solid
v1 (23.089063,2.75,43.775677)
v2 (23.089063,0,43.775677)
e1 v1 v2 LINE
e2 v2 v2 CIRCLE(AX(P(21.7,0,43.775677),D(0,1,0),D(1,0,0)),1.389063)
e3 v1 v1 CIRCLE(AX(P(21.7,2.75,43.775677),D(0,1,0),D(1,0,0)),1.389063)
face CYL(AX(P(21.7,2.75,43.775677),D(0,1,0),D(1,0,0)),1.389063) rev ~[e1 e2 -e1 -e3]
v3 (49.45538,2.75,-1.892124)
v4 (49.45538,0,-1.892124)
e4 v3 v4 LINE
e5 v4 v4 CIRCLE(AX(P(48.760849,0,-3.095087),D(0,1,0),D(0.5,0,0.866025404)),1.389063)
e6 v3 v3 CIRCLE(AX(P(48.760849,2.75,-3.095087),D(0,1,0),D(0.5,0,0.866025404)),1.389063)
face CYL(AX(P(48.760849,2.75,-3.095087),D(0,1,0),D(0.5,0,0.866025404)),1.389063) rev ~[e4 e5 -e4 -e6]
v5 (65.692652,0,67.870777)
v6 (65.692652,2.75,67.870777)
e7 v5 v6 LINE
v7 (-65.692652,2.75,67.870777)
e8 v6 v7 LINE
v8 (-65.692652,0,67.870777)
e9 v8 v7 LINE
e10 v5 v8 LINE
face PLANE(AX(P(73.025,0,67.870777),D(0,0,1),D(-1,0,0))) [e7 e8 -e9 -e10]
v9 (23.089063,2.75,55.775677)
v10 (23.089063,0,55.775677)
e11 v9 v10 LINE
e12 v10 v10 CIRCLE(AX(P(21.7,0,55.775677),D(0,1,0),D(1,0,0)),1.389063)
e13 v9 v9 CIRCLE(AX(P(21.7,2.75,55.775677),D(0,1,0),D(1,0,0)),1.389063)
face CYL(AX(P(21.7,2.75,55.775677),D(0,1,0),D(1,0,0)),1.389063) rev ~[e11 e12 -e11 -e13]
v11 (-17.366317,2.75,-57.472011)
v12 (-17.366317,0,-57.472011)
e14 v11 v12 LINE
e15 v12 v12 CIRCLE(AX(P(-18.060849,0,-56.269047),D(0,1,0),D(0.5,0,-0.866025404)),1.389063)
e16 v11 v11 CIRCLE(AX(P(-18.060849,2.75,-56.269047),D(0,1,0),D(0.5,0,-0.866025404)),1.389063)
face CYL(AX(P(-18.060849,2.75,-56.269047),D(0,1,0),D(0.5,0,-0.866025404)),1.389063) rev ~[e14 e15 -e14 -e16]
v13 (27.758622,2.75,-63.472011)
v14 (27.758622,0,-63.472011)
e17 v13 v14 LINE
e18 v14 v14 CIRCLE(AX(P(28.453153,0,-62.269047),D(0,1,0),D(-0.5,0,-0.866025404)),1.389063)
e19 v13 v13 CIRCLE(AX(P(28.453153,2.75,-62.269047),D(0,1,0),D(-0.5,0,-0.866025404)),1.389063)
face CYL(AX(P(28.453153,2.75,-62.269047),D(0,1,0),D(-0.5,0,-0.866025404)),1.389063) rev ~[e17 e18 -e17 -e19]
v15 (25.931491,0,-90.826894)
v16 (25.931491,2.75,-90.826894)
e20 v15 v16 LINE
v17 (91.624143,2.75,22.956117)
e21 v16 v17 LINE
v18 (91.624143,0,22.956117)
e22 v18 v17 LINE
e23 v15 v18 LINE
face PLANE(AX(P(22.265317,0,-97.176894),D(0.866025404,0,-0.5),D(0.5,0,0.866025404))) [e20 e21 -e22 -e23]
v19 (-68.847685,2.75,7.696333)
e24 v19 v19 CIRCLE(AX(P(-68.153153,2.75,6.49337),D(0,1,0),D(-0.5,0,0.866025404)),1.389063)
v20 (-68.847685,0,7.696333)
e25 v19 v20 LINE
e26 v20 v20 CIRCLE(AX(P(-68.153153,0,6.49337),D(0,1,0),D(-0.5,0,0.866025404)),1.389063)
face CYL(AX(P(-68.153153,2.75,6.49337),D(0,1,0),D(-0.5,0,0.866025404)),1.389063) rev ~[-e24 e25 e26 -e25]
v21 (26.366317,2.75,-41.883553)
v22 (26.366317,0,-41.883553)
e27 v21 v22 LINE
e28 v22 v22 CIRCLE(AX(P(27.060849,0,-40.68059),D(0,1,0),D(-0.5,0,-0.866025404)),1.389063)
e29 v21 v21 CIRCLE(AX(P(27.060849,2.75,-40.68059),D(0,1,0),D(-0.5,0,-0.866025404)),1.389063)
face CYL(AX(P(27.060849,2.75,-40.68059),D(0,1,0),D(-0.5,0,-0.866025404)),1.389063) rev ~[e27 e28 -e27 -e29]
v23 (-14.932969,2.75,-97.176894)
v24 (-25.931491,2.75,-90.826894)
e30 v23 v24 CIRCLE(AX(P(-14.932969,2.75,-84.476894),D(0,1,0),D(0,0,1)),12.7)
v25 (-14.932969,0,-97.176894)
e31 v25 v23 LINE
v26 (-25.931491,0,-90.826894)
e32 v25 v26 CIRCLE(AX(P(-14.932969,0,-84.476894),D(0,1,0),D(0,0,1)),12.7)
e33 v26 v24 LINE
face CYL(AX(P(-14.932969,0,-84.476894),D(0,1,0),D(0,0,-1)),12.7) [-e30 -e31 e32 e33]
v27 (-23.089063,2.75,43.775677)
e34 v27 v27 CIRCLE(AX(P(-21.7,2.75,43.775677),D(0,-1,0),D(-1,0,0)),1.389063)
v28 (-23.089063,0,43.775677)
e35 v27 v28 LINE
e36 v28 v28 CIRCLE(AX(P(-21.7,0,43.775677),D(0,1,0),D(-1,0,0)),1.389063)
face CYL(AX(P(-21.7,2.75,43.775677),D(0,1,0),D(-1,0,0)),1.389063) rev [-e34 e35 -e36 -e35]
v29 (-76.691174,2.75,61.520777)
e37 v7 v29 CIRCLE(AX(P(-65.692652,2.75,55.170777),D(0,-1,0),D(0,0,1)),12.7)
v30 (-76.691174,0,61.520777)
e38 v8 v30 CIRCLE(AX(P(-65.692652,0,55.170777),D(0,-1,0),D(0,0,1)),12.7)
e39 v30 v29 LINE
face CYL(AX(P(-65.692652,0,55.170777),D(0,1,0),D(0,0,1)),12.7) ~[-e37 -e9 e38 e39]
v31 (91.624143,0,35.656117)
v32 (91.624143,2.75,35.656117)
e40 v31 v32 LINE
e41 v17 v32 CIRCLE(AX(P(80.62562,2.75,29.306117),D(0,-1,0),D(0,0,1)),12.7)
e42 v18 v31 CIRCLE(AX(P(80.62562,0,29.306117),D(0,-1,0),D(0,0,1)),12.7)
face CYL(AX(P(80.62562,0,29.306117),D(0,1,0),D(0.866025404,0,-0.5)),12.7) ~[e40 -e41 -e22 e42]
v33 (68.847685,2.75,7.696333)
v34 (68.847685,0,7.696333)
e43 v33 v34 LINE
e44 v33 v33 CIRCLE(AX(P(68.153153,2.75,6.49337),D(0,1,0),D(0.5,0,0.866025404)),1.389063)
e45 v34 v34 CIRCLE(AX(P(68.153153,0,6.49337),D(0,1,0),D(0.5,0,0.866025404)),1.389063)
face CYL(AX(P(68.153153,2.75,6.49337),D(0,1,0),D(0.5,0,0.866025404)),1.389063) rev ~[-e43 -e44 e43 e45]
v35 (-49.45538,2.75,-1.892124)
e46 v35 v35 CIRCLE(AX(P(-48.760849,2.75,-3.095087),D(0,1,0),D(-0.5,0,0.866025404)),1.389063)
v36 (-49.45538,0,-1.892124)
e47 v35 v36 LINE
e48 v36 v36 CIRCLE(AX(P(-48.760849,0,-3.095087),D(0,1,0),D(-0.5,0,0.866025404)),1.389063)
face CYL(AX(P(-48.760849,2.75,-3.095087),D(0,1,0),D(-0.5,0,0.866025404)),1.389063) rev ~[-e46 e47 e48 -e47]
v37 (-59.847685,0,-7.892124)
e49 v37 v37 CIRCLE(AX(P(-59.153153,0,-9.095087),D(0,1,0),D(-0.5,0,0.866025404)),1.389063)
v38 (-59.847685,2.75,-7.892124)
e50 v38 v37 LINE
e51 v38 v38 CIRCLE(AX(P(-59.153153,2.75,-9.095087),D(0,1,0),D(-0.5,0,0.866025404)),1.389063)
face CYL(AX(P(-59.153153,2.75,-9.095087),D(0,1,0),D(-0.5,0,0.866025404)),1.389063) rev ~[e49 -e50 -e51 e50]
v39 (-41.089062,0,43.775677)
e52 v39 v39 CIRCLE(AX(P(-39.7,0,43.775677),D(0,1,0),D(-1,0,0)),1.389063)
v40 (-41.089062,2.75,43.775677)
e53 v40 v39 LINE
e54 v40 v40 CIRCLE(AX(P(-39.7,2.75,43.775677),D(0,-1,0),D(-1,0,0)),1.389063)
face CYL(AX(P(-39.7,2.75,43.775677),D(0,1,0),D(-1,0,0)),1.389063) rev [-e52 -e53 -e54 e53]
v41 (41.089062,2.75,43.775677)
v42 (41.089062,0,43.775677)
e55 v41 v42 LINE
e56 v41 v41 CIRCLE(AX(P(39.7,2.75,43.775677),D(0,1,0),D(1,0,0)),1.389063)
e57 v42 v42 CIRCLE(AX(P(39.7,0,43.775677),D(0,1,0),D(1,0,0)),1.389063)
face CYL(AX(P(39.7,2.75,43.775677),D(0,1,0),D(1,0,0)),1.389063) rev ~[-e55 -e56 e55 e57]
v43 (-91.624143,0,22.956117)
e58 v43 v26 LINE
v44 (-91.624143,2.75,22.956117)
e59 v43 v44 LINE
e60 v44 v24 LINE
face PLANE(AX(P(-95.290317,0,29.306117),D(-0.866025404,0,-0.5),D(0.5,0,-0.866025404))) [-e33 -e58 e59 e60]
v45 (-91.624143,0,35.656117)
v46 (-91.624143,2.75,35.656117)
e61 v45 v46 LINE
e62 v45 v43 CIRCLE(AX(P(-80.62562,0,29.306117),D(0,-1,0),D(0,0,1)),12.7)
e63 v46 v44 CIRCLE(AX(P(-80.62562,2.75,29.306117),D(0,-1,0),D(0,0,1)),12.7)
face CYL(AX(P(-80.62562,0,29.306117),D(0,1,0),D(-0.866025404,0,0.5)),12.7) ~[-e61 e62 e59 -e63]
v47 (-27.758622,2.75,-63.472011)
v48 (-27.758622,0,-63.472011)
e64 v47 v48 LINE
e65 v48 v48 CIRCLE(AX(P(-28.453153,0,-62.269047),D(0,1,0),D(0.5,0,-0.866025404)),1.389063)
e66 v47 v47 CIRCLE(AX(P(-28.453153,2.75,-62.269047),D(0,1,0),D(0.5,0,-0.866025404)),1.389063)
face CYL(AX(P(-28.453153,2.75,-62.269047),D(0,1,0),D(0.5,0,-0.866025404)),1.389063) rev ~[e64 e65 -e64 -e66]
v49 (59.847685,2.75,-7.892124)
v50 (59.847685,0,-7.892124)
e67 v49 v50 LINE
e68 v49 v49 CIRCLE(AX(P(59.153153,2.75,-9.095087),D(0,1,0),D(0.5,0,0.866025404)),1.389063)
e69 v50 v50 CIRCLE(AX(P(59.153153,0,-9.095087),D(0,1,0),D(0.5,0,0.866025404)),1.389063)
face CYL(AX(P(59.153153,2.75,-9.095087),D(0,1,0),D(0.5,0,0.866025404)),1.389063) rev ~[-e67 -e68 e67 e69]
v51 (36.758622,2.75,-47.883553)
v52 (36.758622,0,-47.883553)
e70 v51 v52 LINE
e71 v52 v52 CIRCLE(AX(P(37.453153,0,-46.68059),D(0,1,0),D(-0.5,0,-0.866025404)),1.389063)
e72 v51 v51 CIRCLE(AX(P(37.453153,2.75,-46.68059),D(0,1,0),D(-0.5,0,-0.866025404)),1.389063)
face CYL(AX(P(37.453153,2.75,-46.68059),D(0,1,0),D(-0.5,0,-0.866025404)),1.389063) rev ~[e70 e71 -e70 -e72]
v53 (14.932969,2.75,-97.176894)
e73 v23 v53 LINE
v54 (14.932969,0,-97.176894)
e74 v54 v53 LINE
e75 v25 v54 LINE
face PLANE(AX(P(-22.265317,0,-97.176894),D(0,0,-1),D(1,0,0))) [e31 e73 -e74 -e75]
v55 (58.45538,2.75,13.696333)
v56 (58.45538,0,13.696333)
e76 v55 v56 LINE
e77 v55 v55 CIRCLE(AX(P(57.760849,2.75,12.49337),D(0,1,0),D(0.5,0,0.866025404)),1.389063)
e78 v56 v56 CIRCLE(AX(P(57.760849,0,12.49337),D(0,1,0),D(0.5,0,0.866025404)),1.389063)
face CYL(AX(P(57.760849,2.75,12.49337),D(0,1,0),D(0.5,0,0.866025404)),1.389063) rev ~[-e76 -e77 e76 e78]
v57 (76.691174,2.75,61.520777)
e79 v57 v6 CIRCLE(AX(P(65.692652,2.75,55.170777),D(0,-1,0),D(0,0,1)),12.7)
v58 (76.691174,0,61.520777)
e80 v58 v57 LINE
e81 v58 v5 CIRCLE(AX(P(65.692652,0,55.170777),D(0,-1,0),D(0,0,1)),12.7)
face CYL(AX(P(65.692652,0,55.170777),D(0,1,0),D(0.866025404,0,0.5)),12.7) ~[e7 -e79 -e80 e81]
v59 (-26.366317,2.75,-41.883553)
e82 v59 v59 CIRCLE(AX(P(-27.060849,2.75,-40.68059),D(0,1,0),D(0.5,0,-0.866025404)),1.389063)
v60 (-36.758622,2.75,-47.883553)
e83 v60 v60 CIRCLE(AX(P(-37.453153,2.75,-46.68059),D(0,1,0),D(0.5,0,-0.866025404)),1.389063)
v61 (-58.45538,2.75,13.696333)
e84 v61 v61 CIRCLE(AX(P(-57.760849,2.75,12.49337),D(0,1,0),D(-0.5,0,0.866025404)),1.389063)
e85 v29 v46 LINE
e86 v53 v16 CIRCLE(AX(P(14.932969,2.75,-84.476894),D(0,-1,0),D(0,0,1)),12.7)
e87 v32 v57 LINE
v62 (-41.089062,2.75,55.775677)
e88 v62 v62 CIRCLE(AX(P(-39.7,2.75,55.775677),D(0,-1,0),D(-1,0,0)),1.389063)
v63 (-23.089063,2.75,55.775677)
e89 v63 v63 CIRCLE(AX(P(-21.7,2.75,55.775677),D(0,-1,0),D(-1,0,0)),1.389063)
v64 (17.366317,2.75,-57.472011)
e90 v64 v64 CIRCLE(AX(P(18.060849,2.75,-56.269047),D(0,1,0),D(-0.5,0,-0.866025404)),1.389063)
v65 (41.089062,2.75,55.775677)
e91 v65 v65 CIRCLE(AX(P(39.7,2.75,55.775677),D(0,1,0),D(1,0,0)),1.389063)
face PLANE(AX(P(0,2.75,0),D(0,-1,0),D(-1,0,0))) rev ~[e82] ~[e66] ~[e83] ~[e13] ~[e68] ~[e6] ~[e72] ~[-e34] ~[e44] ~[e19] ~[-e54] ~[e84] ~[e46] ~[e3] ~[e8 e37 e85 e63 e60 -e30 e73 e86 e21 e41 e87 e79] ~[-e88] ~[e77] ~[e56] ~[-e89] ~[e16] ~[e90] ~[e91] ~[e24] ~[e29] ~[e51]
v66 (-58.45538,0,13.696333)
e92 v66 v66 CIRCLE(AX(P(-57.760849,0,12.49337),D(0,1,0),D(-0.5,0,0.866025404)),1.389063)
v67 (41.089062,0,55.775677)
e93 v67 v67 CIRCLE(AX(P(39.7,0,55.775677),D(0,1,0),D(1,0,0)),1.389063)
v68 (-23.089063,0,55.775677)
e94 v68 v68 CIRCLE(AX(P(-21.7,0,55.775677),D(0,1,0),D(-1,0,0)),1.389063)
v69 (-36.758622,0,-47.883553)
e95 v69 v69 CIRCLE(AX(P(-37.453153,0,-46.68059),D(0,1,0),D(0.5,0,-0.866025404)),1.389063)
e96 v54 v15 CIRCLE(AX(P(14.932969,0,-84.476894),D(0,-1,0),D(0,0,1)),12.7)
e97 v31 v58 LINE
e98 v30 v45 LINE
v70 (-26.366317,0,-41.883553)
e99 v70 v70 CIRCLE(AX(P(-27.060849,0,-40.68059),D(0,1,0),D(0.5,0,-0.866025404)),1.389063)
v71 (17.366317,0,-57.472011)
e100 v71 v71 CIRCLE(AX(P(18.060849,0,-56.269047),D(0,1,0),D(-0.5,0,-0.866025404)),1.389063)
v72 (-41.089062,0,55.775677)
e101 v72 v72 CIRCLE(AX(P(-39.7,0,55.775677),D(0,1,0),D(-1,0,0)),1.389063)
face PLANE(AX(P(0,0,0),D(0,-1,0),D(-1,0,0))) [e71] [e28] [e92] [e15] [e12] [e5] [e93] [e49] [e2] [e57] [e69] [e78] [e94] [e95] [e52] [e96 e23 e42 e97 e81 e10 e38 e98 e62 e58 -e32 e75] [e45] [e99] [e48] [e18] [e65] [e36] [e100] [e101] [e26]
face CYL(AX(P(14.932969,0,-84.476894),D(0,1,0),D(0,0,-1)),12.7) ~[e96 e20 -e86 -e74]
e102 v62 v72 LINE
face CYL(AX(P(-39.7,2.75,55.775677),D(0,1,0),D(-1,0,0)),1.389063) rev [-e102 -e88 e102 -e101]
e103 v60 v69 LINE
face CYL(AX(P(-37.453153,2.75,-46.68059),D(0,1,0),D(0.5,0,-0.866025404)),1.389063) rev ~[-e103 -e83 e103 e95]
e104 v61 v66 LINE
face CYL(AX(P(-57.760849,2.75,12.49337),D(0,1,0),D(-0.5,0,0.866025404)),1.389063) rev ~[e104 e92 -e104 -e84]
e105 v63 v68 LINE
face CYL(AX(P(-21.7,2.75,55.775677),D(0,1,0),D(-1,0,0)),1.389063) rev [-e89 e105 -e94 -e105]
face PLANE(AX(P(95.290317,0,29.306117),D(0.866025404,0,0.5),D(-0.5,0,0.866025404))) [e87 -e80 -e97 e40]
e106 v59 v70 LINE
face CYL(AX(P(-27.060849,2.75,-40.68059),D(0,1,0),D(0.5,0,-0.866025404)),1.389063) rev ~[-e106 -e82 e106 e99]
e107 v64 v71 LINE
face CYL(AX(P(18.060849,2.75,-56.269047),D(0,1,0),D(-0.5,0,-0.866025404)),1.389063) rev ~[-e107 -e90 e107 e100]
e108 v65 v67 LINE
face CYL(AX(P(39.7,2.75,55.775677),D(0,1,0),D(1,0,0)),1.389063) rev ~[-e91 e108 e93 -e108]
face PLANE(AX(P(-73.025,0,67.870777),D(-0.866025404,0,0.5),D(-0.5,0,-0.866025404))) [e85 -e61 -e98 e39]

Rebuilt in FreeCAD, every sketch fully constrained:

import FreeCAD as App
import Part
import Sketcher
Q = App.Units.Quantity


def edges_at(feature, points):
    """Names of the edges that pass closest to the given points."""
    edges = feature.Shape.Edges
    near = lambda p: min(range(len(edges)), key=lambda i: edges[i].distToShape(Part.Vertex(*p))[0])
    return sorted({f"Edge{near(p) + 1}" for p in points})


def add_polygon(sketch, points):
    """Adds a closed chain of lines whose ends are joined by coincident constraints."""
    first, n = sketch.GeometryCount, len(points)
    for a, b in zip(points, points[1:] + points[:1]):
        sketch.addGeometry(Part.LineSegment(App.Vector(*a, 0), App.Vector(*b, 0)), False)
    for i in range(n):
        sketch.addConstraint(Sketcher.Constraint("Coincident", first + i, 2, first + (i + 1) % n, 1))

doc = App.newDocument("Part")
body = doc.addObject("PartDesign::Body", "Body")

# Sketch on XZ plane
sketch1 = body.newObject("Sketcher::SketchObject", "Sketch")
sketch1.AttachmentSupport = (doc.getObject("XZ_Plane"), [""])
sketch1.MapMode = "FlatFace"
add_polygon(sketch1, [(22, -97), (-22, -97), (-95, 29), (-73, 68), (73, 68), (95, 29)])  # lines 0-5
sketch1.addConstraint(Sketcher.Constraint("Horizontal", 0))
sketch1.addConstraint(Sketcher.Constraint("Horizontal", 3))
sketch1.addConstraint(Sketcher.Constraint("Symmetric", 1, 2, 4, 2, -2))
sketch1.addConstraint(Sketcher.Constraint("Parallel", 1, 4))
sketch1.addConstraint(Sketcher.Constraint("Parallel", 2, 5))
sketch1.addConstraint(Sketcher.Constraint("Equal", 2, 4))
sketch1.addConstraint(Sketcher.Constraint("Angle", 1, Q("120 deg")))
sketch1.addConstraint(Sketcher.Constraint("DistanceX", 3, 1, 3, 2, Q("5.75 in")))
sketch1.addConstraint(Sketcher.Constraint("Distance", 1, Q("5.75 in")))
sketch1.addConstraint(Sketcher.Constraint("DistanceX", 0, 2, 0, 1, Q("44.530634 mm")))
sketch1.addConstraint(Sketcher.Constraint("DistanceY", 0, 2, -1, 1, Q("97.176894 mm")))
pad1 = body.newObject("PartDesign::Pad", "Pad")
pad1.Profile = sketch1
pad1.Length = 2.75
pad1.Reversed = True
doc.recompute()

fillet = body.newObject("PartDesign::Fillet", "Fillet")
fillet.Base = (pad1, edges_at(pad1, [
    (-22.265, 1.375, -97.177),
    (22.265, 1.375, -97.177),
    (95.29, 1.375, 29.306),
    (73.025, 1.375, 67.871),
    (-73.025, 1.375, 67.871),
    (-95.29, 1.375, 29.306),
]))
fillet.Radius = Q("0.5 in")

# Sketch on XZ plane
sketch2 = body.newObject("Sketcher::SketchObject", "Sketch001")
sketch2.AttachmentSupport = (doc.getObject("XZ_Plane"), [""])
sketch2.MapMode = "FlatFace"
sketch2.AttachmentOffset = App.Placement(App.Vector(0, 0, -2.75), App.Rotation())
sketch2.addGeometry(Part.Circle(App.Vector(21.7, 43.8, 0), App.Vector(0, 0, 1), 1.4), False)
sketch2.addGeometry(Part.Circle(App.Vector(21.7, 55.8, 0), App.Vector(0, 0, 1), 1.4), False)
sketch2.addGeometry(Part.Circle(App.Vector(39.7, 43.8, 0), App.Vector(0, 0, 1), 1.4), False)
sketch2.addGeometry(Part.Circle(App.Vector(39.7, 55.8, 0), App.Vector(0, 0, 1), 1.4), False)
sketch2.addConstraint(Sketcher.Constraint("Equal", 0, 1))
sketch2.addConstraint(Sketcher.Constraint("Equal", 1, 2))
sketch2.addConstraint(Sketcher.Constraint("Equal", 2, 3))
sketch2.addConstraint(Sketcher.Constraint("Horizontal", 0, 3, 2, 3))
sketch2.addConstraint(Sketcher.Constraint("Horizontal", 1, 3, 3, 3))
sketch2.addConstraint(Sketcher.Constraint("Vertical", 0, 3, 1, 3))
sketch2.addConstraint(Sketcher.Constraint("Vertical", 2, 3, 3, 3))
sketch2.addConstraint(Sketcher.Constraint("Diameter", 0, Q("0.109375 in")))
sketch2.addConstraint(Sketcher.Constraint("DistanceX", -1, 1, 0, 3, Q("21.7 mm")))
sketch2.addConstraint(Sketcher.Constraint("DistanceX", -1, 1, 2, 3, Q("39.7 mm")))
sketch2.addConstraint(Sketcher.Constraint("DistanceY", 0, 3, 1, 3, Q("12 mm")))
sketch2.addConstraint(Sketcher.Constraint("DistanceY", -1, 1, 0, 3, Q("43.775677 mm")))
pocket1 = body.newObject("PartDesign::Pocket", "Pocket")
pocket1.Profile = sketch2
pocket1.Type = "ThroughAll"
pocket1.Reversed = True
doc.recompute()

mirrored = body.newObject("PartDesign::Mirrored", "Mirrored")
mirrored.Originals = [pocket1]
mirrored.MirrorPlane = (doc.getObject("YZ_Plane"), [""])
body.Tip = mirrored
doc.recompute()

polarpattern = body.newObject("PartDesign::PolarPattern", "PolarPattern")
polarpattern.Originals = [pocket1]
polarpattern.Axis = (doc.getObject("Y_Axis"), [""])
polarpattern.Angle = 360
polarpattern.Occurrences = 3
body.Tip = polarpattern

# Sketch on XZ plane
sketch3 = body.newObject("Sketcher::SketchObject", "Sketch002")
sketch3.AttachmentSupport = (doc.getObject("XZ_Plane"), [""])
sketch3.MapMode = "FlatFace"
sketch3.AttachmentOffset = App.Placement(App.Vector(0, 0, -2.75), App.Rotation())
sketch3.addGeometry(Part.Circle(App.Vector(48.8, -3.1, 0), App.Vector(0, 0, 1), 1.4), False)
sketch3.addGeometry(Part.Circle(App.Vector(59.2, -9.1, 0), App.Vector(0, 0, 1), 1.4), False)
sketch3.addGeometry(Part.Circle(App.Vector(57.8, 12.5, 0), App.Vector(0, 0, 1), 1.4), False)
sketch3.addGeometry(Part.Circle(App.Vector(68.2, 6.5, 0), App.Vector(0, 0, 1), 1.4), False)
sketch3.addConstraint(Sketcher.Constraint("Equal", 0, 1))
sketch3.addConstraint(Sketcher.Constraint("Equal", 1, 2))
sketch3.addConstraint(Sketcher.Constraint("Equal", 2, 3))
sketch3.addConstraint(Sketcher.Constraint("Diameter", 0, Q("0.109375 in")))
sketch3.addConstraint(Sketcher.Constraint("DistanceY", 1, 3, 0, 3, Q("6 mm")))
sketch3.addConstraint(Sketcher.Constraint("DistanceX", 0, 3, 2, 3, Q("9 mm")))
sketch3.addConstraint(Sketcher.Constraint("DistanceY", 3, 3, 2, 3, Q("6 mm")))
sketch3.addConstraint(Sketcher.Constraint("DistanceX", 1, 3, 3, 3, Q("9 mm")))
sketch3.addConstraint(Sketcher.Constraint("DistanceX", -1, 1, 0, 3, Q("48.760849 mm")))
sketch3.addConstraint(Sketcher.Constraint("DistanceY", -1, 1, 2, 3, Q("12.49337 mm")))
sketch3.addConstraint(Sketcher.Constraint("DistanceY", 0, 3, -1, 1, Q("3.095087 mm")))
sketch3.addConstraint(Sketcher.Constraint("DistanceX", -1, 1, 1, 3, Q("59.153153 mm")))
pocket2 = body.newObject("PartDesign::Pocket", "Pocket001")
pocket2.Profile = sketch3
pocket2.Type = "ThroughAll"
pocket2.Reversed = True

# Sketch on XZ plane
sketch4 = body.newObject("Sketcher::SketchObject", "Sketch003")
sketch4.AttachmentSupport = (doc.getObject("XZ_Plane"), [""])
sketch4.MapMode = "FlatFace"
sketch4.AttachmentOffset = App.Placement(App.Vector(0, 0, -2.75), App.Rotation())
sketch4.addGeometry(Part.Circle(App.Vector(-27.1, -40.7, 0), App.Vector(0, 0, 1), 1.4), False)
sketch4.addGeometry(Part.Circle(App.Vector(-37.5, -46.7, 0), App.Vector(0, 0, 1), 1.4), False)
sketch4.addGeometry(Part.Circle(App.Vector(-18.1, -56.3, 0), App.Vector(0, 0, 1), 1.4), False)
sketch4.addGeometry(Part.Circle(App.Vector(-28.5, -62.3, 0), App.Vector(0, 0, 1), 1.4), False)
sketch4.addConstraint(Sketcher.Constraint("Equal", 0, 1))
sketch4.addConstraint(Sketcher.Constraint("Equal", 1, 2))
sketch4.addConstraint(Sketcher.Constraint("Equal", 2, 3))
sketch4.addConstraint(Sketcher.Constraint("Diameter", 0, Q("0.109375 in")))
sketch4.addConstraint(Sketcher.Constraint("DistanceY", 1, 3, 0, 3, Q("6 mm")))
sketch4.addConstraint(Sketcher.Constraint("DistanceX", 0, 3, 2, 3, Q("9 mm")))
sketch4.addConstraint(Sketcher.Constraint("DistanceY", 3, 3, 2, 3, Q("6 mm")))
sketch4.addConstraint(Sketcher.Constraint("DistanceX", 1, 3, 3, 3, Q("9 mm")))
sketch4.addConstraint(Sketcher.Constraint("DistanceX", 0, 3, -1, 1, Q("27.060849 mm")))
sketch4.addConstraint(Sketcher.Constraint("DistanceY", 0, 3, -1, 1, Q("40.68059 mm")))
sketch4.addConstraint(Sketcher.Constraint("DistanceX", 1, 3, -1, 1, Q("37.453153 mm")))
sketch4.addConstraint(Sketcher.Constraint("DistanceY", 2, 3, -1, 1, Q("56.269047 mm")))
pocket3 = body.newObject("PartDesign::Pocket", "Pocket002")
pocket3.Profile = sketch4
pocket3.Type = "ThroughAll"
pocket3.Reversed = True

doc.recompute()
